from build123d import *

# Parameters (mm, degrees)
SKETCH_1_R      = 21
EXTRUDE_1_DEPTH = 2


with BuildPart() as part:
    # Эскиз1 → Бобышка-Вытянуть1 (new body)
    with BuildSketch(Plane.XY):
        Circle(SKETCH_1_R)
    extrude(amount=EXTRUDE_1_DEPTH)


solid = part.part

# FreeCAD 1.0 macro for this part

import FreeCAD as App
import Part
import Sketcher

V = App.Vector

doc = App.newDocument("Part")
body = doc.addObject("PartDesign::Body", "Body")

sketch1 = body.newObject("Sketcher::SketchObject", "Sketch")
sketch1.AttachmentSupport = (doc.getObject("XY_Plane"), [""])
sketch1.MapMode = "FlatFace"
sketch1.addGeometry(Part.Circle(V(0, 0, 0), V(0, 0, 1), 21), False)
sketch1.addConstraint(Sketcher.Constraint("Coincident", 0, 3, -1, 1))
sketch1.addConstraint(Sketcher.Constraint("Diameter", 0, 42.0))
pad1 = body.newObject("PartDesign::Pad", "Pad")
pad1.Profile = sketch1
pad1.Length = 2

doc.recompute()
